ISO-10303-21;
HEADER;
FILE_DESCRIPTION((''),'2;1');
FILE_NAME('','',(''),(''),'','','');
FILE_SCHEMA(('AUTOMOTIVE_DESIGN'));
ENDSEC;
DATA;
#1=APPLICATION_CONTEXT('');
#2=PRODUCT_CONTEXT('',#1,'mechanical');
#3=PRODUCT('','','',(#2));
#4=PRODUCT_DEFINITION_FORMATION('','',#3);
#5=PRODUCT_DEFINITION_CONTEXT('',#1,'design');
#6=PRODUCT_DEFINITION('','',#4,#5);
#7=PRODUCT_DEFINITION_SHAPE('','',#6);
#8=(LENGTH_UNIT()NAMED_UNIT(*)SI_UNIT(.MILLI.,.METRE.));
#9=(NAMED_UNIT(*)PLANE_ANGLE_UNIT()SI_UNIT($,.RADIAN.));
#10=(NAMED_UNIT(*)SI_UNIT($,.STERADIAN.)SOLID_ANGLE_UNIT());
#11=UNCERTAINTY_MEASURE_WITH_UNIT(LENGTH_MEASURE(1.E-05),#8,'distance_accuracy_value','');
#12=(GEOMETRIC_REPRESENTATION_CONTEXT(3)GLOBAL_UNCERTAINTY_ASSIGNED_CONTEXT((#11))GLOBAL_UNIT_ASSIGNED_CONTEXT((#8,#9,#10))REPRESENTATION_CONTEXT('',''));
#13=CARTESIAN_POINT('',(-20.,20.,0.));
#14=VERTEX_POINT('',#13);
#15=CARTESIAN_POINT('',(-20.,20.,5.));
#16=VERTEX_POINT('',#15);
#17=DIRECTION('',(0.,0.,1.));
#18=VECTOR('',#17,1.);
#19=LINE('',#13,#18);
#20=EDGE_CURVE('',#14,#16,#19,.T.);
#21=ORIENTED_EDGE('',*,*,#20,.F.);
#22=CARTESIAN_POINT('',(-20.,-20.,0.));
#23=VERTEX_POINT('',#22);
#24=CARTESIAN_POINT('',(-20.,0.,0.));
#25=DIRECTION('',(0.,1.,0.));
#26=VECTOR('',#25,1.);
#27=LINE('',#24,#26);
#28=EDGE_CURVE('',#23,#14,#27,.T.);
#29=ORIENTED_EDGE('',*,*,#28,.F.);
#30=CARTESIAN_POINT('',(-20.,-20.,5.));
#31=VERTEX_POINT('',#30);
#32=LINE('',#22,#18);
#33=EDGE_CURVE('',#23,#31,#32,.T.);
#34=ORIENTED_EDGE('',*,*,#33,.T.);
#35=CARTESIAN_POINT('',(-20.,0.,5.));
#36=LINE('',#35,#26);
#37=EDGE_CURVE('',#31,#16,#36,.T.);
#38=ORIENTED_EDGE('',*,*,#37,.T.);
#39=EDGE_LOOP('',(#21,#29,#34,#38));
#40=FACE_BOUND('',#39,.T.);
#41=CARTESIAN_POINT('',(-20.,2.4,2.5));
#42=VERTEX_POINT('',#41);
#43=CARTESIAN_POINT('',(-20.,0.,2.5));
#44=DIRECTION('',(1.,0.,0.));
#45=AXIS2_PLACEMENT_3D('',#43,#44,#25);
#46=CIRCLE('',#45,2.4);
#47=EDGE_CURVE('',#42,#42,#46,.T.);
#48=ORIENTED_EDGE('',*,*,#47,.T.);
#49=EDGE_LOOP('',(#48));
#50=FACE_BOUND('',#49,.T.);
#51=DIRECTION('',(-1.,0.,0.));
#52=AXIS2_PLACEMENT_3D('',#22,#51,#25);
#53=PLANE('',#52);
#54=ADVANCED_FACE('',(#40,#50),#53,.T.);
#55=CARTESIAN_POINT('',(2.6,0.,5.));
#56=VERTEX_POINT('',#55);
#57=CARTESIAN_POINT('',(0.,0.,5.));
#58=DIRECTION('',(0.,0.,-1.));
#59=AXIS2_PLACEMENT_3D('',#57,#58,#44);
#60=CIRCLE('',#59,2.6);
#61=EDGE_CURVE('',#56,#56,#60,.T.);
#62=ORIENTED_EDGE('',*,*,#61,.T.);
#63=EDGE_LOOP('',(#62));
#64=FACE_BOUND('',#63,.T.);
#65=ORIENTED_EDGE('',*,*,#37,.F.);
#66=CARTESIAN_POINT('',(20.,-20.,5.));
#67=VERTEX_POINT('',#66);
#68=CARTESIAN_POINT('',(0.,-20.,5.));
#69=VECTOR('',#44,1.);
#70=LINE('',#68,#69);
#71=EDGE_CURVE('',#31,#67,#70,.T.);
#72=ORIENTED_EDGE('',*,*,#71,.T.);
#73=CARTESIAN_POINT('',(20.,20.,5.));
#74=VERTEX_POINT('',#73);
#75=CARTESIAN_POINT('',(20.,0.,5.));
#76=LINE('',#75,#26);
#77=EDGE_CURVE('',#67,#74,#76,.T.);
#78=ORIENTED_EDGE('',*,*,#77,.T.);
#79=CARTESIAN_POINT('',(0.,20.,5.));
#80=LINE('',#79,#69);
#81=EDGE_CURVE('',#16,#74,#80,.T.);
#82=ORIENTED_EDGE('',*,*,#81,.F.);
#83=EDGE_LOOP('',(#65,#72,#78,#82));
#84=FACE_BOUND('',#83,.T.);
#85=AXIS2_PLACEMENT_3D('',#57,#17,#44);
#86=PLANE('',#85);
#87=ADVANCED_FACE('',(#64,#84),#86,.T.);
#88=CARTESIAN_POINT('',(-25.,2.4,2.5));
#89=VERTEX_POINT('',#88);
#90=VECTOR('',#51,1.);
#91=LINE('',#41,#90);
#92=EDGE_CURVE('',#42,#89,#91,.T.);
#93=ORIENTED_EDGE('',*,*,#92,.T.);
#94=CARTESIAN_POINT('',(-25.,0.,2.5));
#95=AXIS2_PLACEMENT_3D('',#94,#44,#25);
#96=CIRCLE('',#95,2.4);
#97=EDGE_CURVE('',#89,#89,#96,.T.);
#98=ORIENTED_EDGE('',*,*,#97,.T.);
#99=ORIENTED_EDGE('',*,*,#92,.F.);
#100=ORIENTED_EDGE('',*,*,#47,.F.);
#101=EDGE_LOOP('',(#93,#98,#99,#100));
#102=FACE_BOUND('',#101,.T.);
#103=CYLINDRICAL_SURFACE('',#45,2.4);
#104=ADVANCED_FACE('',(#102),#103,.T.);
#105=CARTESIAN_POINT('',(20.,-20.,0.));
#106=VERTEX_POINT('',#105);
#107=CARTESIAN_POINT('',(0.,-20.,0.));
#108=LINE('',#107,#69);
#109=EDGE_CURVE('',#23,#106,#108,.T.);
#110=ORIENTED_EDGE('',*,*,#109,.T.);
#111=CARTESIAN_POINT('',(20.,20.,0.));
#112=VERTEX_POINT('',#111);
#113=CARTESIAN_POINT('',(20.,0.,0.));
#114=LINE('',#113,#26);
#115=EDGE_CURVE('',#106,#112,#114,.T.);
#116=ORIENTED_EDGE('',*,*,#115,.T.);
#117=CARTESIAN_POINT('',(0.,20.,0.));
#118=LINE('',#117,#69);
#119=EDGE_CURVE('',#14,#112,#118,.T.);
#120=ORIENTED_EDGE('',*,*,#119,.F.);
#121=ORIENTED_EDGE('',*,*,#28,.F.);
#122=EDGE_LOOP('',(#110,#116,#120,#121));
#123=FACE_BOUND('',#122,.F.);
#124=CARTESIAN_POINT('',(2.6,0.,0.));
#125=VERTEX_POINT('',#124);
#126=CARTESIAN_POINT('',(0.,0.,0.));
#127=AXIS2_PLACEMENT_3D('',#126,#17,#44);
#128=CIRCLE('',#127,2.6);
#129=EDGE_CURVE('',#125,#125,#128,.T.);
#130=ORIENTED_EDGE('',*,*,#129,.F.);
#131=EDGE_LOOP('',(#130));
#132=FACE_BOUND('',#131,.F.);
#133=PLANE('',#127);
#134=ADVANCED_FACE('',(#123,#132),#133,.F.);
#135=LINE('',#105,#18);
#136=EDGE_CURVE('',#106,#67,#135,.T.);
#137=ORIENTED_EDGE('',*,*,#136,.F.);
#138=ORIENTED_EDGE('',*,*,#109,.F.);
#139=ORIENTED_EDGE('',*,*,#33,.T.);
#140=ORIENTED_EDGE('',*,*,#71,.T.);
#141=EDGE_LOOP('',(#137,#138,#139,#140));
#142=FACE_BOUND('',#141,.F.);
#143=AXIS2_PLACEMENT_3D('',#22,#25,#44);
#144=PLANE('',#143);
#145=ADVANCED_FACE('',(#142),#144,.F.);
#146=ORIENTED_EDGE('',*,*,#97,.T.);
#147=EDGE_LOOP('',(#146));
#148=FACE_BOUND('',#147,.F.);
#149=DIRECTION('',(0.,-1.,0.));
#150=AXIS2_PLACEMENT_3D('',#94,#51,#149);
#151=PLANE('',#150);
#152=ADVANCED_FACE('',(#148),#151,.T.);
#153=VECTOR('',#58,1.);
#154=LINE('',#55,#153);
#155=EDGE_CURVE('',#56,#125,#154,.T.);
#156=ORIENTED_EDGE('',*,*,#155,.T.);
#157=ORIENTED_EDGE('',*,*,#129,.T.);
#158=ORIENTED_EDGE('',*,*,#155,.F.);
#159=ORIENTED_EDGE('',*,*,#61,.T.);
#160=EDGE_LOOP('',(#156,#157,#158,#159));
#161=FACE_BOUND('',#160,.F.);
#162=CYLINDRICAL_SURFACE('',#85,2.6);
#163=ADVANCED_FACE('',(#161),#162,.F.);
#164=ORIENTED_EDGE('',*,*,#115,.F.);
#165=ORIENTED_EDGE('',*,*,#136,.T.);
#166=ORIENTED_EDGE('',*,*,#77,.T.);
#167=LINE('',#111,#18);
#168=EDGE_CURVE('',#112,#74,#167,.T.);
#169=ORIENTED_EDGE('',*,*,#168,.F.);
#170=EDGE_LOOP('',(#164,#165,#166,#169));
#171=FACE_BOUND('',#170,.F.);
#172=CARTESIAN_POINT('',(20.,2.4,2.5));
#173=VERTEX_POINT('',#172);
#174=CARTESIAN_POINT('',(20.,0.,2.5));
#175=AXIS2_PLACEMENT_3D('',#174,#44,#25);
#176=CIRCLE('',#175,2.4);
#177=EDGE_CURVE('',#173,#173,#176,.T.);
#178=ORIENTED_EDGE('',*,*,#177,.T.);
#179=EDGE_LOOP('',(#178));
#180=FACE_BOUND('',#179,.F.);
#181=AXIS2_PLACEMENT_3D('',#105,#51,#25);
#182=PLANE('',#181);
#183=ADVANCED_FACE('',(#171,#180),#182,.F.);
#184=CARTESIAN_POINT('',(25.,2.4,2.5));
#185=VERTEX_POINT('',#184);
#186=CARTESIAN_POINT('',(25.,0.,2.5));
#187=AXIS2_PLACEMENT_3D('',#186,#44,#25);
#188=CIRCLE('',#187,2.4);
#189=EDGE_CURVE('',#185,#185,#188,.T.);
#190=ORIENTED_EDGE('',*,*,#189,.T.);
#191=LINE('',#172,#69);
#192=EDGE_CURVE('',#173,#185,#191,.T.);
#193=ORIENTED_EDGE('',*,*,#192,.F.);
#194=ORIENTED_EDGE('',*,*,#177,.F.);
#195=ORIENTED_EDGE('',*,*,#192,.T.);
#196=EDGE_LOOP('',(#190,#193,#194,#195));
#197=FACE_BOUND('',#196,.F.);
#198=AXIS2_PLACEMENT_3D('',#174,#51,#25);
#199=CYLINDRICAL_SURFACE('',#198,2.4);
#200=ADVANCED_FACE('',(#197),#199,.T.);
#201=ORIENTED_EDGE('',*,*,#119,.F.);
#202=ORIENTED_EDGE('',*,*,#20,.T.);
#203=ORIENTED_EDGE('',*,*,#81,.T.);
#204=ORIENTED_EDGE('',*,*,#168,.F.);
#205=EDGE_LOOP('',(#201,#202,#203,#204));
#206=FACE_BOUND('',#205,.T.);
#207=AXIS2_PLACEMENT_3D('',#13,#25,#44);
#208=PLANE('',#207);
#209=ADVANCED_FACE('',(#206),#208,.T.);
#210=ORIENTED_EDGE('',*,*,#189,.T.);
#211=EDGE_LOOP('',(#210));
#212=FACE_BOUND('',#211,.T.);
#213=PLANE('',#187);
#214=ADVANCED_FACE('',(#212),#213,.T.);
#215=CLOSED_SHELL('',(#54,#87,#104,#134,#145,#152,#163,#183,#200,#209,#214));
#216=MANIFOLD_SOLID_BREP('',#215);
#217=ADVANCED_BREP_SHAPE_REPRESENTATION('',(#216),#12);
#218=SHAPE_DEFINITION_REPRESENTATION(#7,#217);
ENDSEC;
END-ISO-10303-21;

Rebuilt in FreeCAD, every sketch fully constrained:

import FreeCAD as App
import Part
import Sketcher
from FreeCAD import Vector


def add_polygon(sketch, points):
    """Adds a closed chain of lines whose ends are joined by coincident constraints."""
    first, n = sketch.GeometryCount, len(points)
    for a, b in zip(points, points[1:] + points[:1]):
        sketch.addGeometry(Part.LineSegment(App.Vector(*a, 0), App.Vector(*b, 0)), False)
    for i in range(n):
        sketch.addConstraint(Sketcher.Constraint("Coincident", first + i, 2, first + (i + 1) % n, 1))

doc = App.newDocument("Part")
body = doc.addObject("PartDesign::Body", "Body")

sketch1 = body.newObject("Sketcher::SketchObject", "Sketch")
sketch1.AttachmentSupport = (doc.getObject("XY_Plane"), [""])
sketch1.MapMode = "FlatFace"
add_polygon(sketch1, [(-20, 20), (-20, -20), (20, -20), (20, 20)])
sketch1.addConstraint([
    Sketcher.Constraint("Vertical", 0),
    Sketcher.Constraint("Horizontal", 1),
    Sketcher.Constraint("Vertical", 2),
    Sketcher.Constraint("Horizontal", 3),
    Sketcher.Constraint("Symmetric", 0, 2, 2, 2, -1, 1),
    Sketcher.Constraint("Equal", 3, 0),
    Sketcher.Constraint("DistanceX", 1, 1, 1, 2, 40.0),
])
pad1 = body.newObject("PartDesign::Pad", "Pad")
pad1.Profile = sketch1
pad1.Length = 5

sketch2 = body.newObject("Sketcher::SketchObject", "Sketch001")
sketch2.AttachmentSupport = (doc.getObject("XY_Plane"), [""])
sketch2.MapMode = "FlatFace"
sketch2.AttachmentOffset = App.Placement(Vector(0, 0, 5), App.Rotation())
sketch2.addGeometry(Part.Circle(Vector(0, 0, 0), Vector(0, 0, 1), 2.6), False)
sketch2.addConstraint([
    Sketcher.Constraint("Coincident", 0, 3, -1, 1),
    Sketcher.Constraint("Diameter", 0, 5.2),
])
pocket1 = body.newObject("PartDesign::Pocket", "Pocket")
pocket1.Profile = sketch2
pocket1.Length = 25.4

sketch3 = body.newObject("Sketcher::SketchObject", "Sketch002")
sketch3.AttachmentSupport = (doc.getObject("YZ_Plane"), [""])
sketch3.MapMode = "FlatFace"
sketch3.AttachmentOffset = App.Placement(Vector(0, 0, 20), App.Rotation())
sketch3.addGeometry(Part.Circle(Vector(0, 2.5, 0), Vector(0, 0, 1), 2.4), False)
sketch3.addConstraint([
    Sketcher.Constraint("PointOnObject", 0, 3, -2),
    Sketcher.Constraint("Diameter", 0, 4.8),
    Sketcher.Constraint("DistanceY", -1, 1, 0, 3, 2.5),
])
pad2 = body.newObject("PartDesign::Pad", "Pad001")
pad2.Profile = sketch3
pad2.Length = 5
body2 = doc.addObject("PartDesign::Body", "Body001")
doc.recompute()

body2.BaseFeature = body
doc.recompute()

mirroring = doc.addObject("Part::Mirroring", "Mirroring")
mirroring.Source = body
mirroring.Base = Vector(0, 0, 0)
mirroring.Normal = Vector(1, 0, 0)
body3 = doc.addObject("PartDesign::Body", "Body002")
body3.BaseFeature = mirroring
boolean = body2.newObject("PartDesign::Boolean", "Boolean")
boolean.Type = "Fuse"
boolean.addObjects([body3])
doc.recompute()
mirroring.Visibility = False

doc.recompute()
